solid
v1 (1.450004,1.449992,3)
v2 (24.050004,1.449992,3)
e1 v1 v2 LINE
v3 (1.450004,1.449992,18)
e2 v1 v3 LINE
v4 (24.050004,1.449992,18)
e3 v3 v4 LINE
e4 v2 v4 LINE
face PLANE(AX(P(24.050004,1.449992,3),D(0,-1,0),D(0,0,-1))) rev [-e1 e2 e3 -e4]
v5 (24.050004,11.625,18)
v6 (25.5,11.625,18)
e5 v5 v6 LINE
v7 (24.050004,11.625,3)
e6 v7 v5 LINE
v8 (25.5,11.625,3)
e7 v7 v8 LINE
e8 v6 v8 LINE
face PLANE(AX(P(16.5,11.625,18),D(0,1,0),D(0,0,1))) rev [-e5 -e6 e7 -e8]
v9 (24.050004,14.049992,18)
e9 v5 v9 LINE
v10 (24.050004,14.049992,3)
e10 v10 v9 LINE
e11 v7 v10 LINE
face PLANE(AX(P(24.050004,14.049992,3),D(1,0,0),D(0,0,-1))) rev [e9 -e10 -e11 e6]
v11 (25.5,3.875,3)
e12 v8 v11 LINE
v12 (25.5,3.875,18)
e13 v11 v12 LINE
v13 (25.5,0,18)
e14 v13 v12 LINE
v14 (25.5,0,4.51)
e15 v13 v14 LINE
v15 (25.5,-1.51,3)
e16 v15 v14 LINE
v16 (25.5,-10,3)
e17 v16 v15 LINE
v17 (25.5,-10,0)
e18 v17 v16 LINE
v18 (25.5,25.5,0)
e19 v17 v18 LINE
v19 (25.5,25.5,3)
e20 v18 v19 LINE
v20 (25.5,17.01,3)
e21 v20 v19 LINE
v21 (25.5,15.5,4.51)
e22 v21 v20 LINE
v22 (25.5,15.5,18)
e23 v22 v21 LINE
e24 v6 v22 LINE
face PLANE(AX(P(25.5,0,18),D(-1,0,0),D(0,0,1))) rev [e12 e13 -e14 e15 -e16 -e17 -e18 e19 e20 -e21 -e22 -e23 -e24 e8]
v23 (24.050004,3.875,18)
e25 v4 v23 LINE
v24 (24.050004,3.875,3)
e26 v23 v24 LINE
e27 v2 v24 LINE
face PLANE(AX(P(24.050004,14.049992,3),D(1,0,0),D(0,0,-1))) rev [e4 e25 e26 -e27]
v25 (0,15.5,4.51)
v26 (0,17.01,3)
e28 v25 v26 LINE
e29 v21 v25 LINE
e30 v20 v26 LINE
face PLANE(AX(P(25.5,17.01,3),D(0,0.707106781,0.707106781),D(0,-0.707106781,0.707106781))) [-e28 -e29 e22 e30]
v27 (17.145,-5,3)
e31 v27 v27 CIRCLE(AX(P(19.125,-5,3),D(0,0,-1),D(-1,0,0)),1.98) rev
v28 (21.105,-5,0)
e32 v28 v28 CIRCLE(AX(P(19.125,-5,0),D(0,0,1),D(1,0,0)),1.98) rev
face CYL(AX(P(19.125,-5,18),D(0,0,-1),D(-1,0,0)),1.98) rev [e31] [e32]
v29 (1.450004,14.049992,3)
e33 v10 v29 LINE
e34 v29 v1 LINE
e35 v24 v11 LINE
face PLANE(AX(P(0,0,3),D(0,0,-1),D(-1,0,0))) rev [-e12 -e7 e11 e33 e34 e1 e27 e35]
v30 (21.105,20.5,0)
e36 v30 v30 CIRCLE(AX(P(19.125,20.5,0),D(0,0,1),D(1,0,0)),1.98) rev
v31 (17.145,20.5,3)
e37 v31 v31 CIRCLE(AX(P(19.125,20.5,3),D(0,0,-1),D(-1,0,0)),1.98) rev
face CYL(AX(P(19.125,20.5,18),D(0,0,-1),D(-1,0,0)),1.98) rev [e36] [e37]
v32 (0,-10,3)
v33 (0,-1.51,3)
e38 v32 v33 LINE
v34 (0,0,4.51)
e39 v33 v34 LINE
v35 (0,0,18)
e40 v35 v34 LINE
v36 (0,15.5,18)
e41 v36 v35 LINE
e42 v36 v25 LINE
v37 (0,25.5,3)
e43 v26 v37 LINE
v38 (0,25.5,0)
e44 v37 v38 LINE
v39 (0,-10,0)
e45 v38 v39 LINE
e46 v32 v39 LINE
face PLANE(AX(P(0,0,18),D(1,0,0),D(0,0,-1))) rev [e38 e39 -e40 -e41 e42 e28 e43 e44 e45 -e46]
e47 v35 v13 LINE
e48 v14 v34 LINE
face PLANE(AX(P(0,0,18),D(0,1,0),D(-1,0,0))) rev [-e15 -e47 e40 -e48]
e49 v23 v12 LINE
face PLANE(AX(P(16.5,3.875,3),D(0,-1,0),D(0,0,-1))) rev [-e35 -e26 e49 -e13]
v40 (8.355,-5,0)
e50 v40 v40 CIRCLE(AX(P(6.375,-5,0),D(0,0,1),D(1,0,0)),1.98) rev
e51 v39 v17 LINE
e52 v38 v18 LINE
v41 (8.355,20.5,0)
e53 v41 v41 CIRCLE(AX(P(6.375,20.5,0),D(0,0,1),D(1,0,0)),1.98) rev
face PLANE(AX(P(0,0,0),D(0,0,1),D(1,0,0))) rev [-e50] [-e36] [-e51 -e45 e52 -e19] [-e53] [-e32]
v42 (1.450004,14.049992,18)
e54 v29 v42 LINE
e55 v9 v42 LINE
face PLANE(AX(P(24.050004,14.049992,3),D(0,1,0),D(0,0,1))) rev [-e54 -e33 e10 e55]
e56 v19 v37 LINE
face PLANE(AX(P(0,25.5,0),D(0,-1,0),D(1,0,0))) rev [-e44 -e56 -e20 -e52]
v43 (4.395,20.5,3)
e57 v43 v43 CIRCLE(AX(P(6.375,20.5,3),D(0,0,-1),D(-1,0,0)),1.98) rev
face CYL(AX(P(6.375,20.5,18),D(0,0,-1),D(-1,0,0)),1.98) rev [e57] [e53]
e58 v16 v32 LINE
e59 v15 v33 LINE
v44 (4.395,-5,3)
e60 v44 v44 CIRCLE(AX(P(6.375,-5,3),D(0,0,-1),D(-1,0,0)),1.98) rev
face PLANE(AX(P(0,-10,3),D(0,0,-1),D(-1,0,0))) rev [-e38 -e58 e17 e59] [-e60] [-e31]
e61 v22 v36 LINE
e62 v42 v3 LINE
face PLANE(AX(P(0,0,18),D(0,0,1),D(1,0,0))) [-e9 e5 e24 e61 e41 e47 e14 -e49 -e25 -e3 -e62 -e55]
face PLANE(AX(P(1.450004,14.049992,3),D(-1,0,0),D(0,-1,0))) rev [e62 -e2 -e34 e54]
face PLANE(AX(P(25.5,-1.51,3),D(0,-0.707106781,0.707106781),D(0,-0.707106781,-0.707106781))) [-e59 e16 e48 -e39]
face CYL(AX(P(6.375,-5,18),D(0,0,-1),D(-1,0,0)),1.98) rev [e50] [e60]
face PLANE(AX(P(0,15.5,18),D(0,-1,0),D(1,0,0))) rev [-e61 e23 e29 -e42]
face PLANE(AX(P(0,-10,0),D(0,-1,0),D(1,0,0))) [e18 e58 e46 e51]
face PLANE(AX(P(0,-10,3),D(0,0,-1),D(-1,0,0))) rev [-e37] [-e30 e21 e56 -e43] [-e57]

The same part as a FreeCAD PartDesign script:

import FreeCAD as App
import Part
import Sketcher
from FreeCAD import Vector


def add_polygon(sketch, points):
    """Adds a closed chain of lines whose ends are joined by coincident constraints."""
    first, n = sketch.GeometryCount, len(points)
    for a, b in zip(points, points[1:] + points[:1]):
        sketch.addGeometry(Part.LineSegment(App.Vector(*a, 0), App.Vector(*b, 0)), False)
    for i in range(n):
        sketch.addConstraint(Sketcher.Constraint("Coincident", first + i, 2, first + (i + 1) % n, 1))

doc = App.newDocument("Part")
params = doc.addObject("Spreadsheet::Sheet", "Params")
for row, (alias, value) in enumerate([
    ("sketch1_width", "25.5 mm"),
    ("sketch1_height", "15.5 mm"),
    ("pad1_length", "18 mm"),
    ("sketch2_width", "22.6 mm"),
    ("sketch2_height", "12.6 mm"),
    ("pocket1_length", "15 mm"),
    ("sketch3_height", "3 mm"),
    ("sketch3_width", "25.5 mm"),
    ("pad2_length", "10 mm"),
    ("pad2_length2", "25.5 mm"),
    ("sketch4_diameter", "3.96 mm"),
    ("sketch5_width", "1.51 mm"),
    ("pad3_length", "25.5 mm"),
    ("sketch6_height", "15 mm"),
    ("sketch6_width", "7.75 mm"),
    ("pocket3_length", "5 mm"),
    ("pocket3_length2", "9 mm"),
], start=1):
    params.set(f"A{row}", alias)
    params.set(f"B{row}", "=" + value)
    params.setAlias(f"B{row}", alias)

body = doc.addObject("PartDesign::Body", "Body")

# Sketch on XY plane
sketch1 = doc.addObject("Sketcher::SketchObject", "Sketch")
body.addObject(sketch1)
sketch1.AttachmentSupport = (doc.XY_Plane, [""])
sketch1.MapMode = "FlatFace"
add_polygon(sketch1, [(0, 15.5), (0, 0), (25.5, 0), (25.5, 15.5)])  # lines 0-3
sketch1.addConstraint(Sketcher.Constraint("Vertical", 0))
sketch1.addConstraint(Sketcher.Constraint("Horizontal", 1))
sketch1.addConstraint(Sketcher.Constraint("Vertical", 2))
sketch1.addConstraint(Sketcher.Constraint("Horizontal", 3))
sketch1.addConstraint(Sketcher.Constraint("Coincident", 0, 2, -1, 1))
sketch1.addConstraint(Sketcher.Constraint("DistanceX", 1, 1, 1, 2, 25.5))
sketch1.addConstraint(Sketcher.Constraint("DistanceY", 0, 2, 0, 1, 15.5))
sketch1.setExpression("Constraints[9]", "Params.sketch1_width")
sketch1.setExpression("Constraints[10]", "Params.sketch1_height")
pad1 = doc.addObject("PartDesign::Pad", "Pad")
body.addObject(pad1)
pad1.Profile = sketch1
pad1.setExpression("Length", "Params.pad1_length")

# Sketch on XY plane
sketch2 = doc.addObject("Sketcher::SketchObject", "Sketch001")
body.addObject(sketch2)
sketch2.AttachmentSupport = (doc.XY_Plane, [""])
sketch2.MapMode = "FlatFace"
sketch2.AttachmentOffset = App.Placement(Vector(0, 0, 18), App.Rotation())
add_polygon(sketch2, [(1.450004, 14.049992), (1.450004, 1.449992), (24.050004, 1.449992), (24.050004, 14.049992)])  # lines 0-3
sketch2.addConstraint(Sketcher.Constraint("Vertical", 0))
sketch2.addConstraint(Sketcher.Constraint("Horizontal", 1))
sketch2.addConstraint(Sketcher.Constraint("Vertical", 2))
sketch2.addConstraint(Sketcher.Constraint("Horizontal", 3))
sketch2.addConstraint(Sketcher.Constraint("DistanceX", 1, 1, 1, 2, 22.6))
sketch2.addConstraint(Sketcher.Constraint("DistanceY", 0, 2, 0, 1, 12.6))
sketch2.addConstraint(Sketcher.Constraint("DistanceY", -1, 1, 0, 2, 1.449992))
sketch2.addConstraint(Sketcher.Constraint("DistanceX", -1, 1, 0, 2, 1.450004))
sketch2.setExpression("Constraints[8]", "Params.sketch2_width")
sketch2.setExpression("Constraints[9]", "Params.sketch2_height")
pocket1 = doc.addObject("PartDesign::Pocket", "Pocket")
body.addObject(pocket1)
pocket1.Profile = sketch2
pocket1.setExpression("Length", "Params.pocket1_length")

# Sketch on XZ plane
sketch3 = doc.addObject("Sketcher::SketchObject", "Sketch002")
body.addObject(sketch3)
sketch3.AttachmentSupport = (doc.XZ_Plane, [""])
sketch3.MapMode = "FlatFace"
add_polygon(sketch3, [(0, 3), (0, 0), (25.5, 0), (25.5, 3)])  # lines 0-3
sketch3.addConstraint(Sketcher.Constraint("Vertical", 0))
sketch3.addConstraint(Sketcher.Constraint("Horizontal", 1))
sketch3.addConstraint(Sketcher.Constraint("Vertical", 2))
sketch3.addConstraint(Sketcher.Constraint("Horizontal", 3))
sketch3.addConstraint(Sketcher.Constraint("Coincident", 0, 2, -1, 1))
sketch3.addConstraint(Sketcher.Constraint("DistanceY", 0, 2, 0, 1, 3.0))
sketch3.addConstraint(Sketcher.Constraint("DistanceX", 1, 1, 1, 2, 25.5))
sketch3.setExpression("Constraints[9]", "Params.sketch3_height")
sketch3.setExpression("Constraints[10]", "Params.sketch3_width")
pad2 = doc.addObject("PartDesign::Pad", "Pad001")
body.addObject(pad2)
pad2.Profile = sketch3
pad2.Type = "TwoLengths"
pad2.setExpression("Length", "Params.pad2_length")
pad2.setExpression("Length2", "Params.pad2_length2")

# Sketch on XY plane
sketch4 = doc.addObject("Sketcher::SketchObject", "Sketch003")
body.addObject(sketch4)
sketch4.AttachmentSupport = (doc.XY_Plane, [""])
sketch4.MapMode = "FlatFace"
sketch4.AttachmentOffset = App.Placement(Vector(0, 0, 3), App.Rotation())
sketch4.addGeometry(Part.Circle(Vector(19.125, 20.5, 0), Vector(0, 0, 1), 1.98), False)
sketch4.addGeometry(Part.Circle(Vector(6.375, -5, 0), Vector(0, 0, 1), 1.98), False)
sketch4.addGeometry(Part.Circle(Vector(6.375, 20.5, 0), Vector(0, 0, 1), 1.98), False)
sketch4.addGeometry(Part.Circle(Vector(19.125, -5, 0), Vector(0, 0, 1), 1.98), False)
sketch4.addConstraint(Sketcher.Constraint("Equal", 0, 1))
sketch4.addConstraint(Sketcher.Constraint("Equal", 1, 2))
sketch4.addConstraint(Sketcher.Constraint("Equal", 2, 3))
sketch4.addConstraint(Sketcher.Constraint("Horizontal", 0, 3, 2, 3))
sketch4.addConstraint(Sketcher.Constraint("Horizontal", 1, 3, 3, 3))
sketch4.addConstraint(Sketcher.Constraint("Vertical", 1, 3, 2, 3))
sketch4.addConstraint(Sketcher.Constraint("Vertical", 0, 3, 3, 3))
sketch4.addConstraint(Sketcher.Constraint("Diameter", 0, 3.96))
sketch4.addConstraint(Sketcher.Constraint("DistanceY", 1, 3, -1, 1, 5.0))
sketch4.addConstraint(Sketcher.Constraint("DistanceY", -1, 1, 0, 3, 20.5))
sketch4.addConstraint(Sketcher.Constraint("DistanceX", 1, 3, 0, 3, 12.75))
sketch4.addConstraint(Sketcher.Constraint("DistanceX", -1, 1, 0, 3, 19.125))
sketch4.setExpression("Constraints[7]", "Params.sketch4_diameter")
pocket2 = doc.addObject("PartDesign::Pocket", "Pocket001")
body.addObject(pocket2)
pocket2.Profile = sketch4
pocket2.Type = "ThroughAll"
pocket2.Midplane = True

# Sketch on YZ plane
sketch5 = doc.addObject("Sketcher::SketchObject", "Sketch004")
body.addObject(sketch5)
sketch5.AttachmentSupport = (doc.YZ_Plane, [""])
sketch5.MapMode = "FlatFace"
add_polygon(sketch5, [(17.01, 3), (15.5, 3), (15.5, 4.51)])  # lines 0-2
add_polygon(sketch5, [(0, 4.51), (0, 3), (-1.51, 3)])  # lines 3-5
sketch5.addConstraint(Sketcher.Constraint("Horizontal", 0))
sketch5.addConstraint(Sketcher.Constraint("Vertical", 1))
sketch5.addConstraint(Sketcher.Constraint("Vertical", 3))
sketch5.addConstraint(Sketcher.Constraint("Horizontal", 4))
sketch5.addConstraint(Sketcher.Constraint("PointOnObject", 3, 2, -2))
sketch5.addConstraint(Sketcher.Constraint("Perpendicular", 2, 5))
sketch5.addConstraint(Sketcher.Constraint("Horizontal", 2, 2, 3, 2))
sketch5.addConstraint(Sketcher.Constraint("Horizontal", 1, 2, 5, 2))
sketch5.addConstraint(Sketcher.Constraint("Equal", 0, 4))
sketch5.addConstraint(Sketcher.Constraint("DistanceY", -1, 1, 0, 2, 3.0))
sketch5.addConstraint(Sketcher.Constraint("DistanceX", 0, 2, 0, 1, 1.51))
sketch5.addConstraint(Sketcher.Constraint("DistanceX", -1, 1, 0, 2, 15.5))
sketch5.setExpression("Constraints[16]", "Params.sketch5_width")
pad3 = doc.addObject("PartDesign::Pad", "Pad002")
body.addObject(pad3)
pad3.Profile = sketch5
pad3.setExpression("Length", "Params.pad3_length")

# Sketch on YZ plane
sketch6 = doc.addObject("Sketcher::SketchObject", "Sketch005")
body.addObject(sketch6)
sketch6.AttachmentSupport = (doc.YZ_Plane, [""])
sketch6.MapMode = "FlatFace"
sketch6.AttachmentOffset = App.Placement(Vector(0, 0, 25.5), App.Rotation())
add_polygon(sketch6, [(11.625, 18), (3.875, 18), (3.875, 3), (11.625, 3)])  # lines 0-3
sketch6.addConstraint(Sketcher.Constraint("Horizontal", 0))
sketch6.addConstraint(Sketcher.Constraint("Vertical", 1))
sketch6.addConstraint(Sketcher.Constraint("Horizontal", 2))
sketch6.addConstraint(Sketcher.Constraint("Vertical", 3))
sketch6.addConstraint(Sketcher.Constraint("DistanceY", 1, 2, 1, 1, 15.0))
sketch6.addConstraint(Sketcher.Constraint("DistanceY", -1, 1, 0, 2, 18.0))
sketch6.addConstraint(Sketcher.Constraint("DistanceX", 0, 2, 0, 1, 7.75))
sketch6.addConstraint(Sketcher.Constraint("DistanceX", -1, 1, 0, 2, 3.875))
sketch6.setExpression("Constraints[8]", "Params.sketch6_height")
sketch6.setExpression("Constraints[10]", "Params.sketch6_width")
pocket3 = doc.addObject("PartDesign::Pocket", "Pocket002")
body.addObject(pocket3)
pocket3.Profile = sketch6
pocket3.Type = "TwoLengths"
pocket3.setExpression("Length", "Params.pocket3_length")
pocket3.setExpression("Length2", "Params.pocket3_length2")
pocket3.Reversed = True

doc.recompute()
